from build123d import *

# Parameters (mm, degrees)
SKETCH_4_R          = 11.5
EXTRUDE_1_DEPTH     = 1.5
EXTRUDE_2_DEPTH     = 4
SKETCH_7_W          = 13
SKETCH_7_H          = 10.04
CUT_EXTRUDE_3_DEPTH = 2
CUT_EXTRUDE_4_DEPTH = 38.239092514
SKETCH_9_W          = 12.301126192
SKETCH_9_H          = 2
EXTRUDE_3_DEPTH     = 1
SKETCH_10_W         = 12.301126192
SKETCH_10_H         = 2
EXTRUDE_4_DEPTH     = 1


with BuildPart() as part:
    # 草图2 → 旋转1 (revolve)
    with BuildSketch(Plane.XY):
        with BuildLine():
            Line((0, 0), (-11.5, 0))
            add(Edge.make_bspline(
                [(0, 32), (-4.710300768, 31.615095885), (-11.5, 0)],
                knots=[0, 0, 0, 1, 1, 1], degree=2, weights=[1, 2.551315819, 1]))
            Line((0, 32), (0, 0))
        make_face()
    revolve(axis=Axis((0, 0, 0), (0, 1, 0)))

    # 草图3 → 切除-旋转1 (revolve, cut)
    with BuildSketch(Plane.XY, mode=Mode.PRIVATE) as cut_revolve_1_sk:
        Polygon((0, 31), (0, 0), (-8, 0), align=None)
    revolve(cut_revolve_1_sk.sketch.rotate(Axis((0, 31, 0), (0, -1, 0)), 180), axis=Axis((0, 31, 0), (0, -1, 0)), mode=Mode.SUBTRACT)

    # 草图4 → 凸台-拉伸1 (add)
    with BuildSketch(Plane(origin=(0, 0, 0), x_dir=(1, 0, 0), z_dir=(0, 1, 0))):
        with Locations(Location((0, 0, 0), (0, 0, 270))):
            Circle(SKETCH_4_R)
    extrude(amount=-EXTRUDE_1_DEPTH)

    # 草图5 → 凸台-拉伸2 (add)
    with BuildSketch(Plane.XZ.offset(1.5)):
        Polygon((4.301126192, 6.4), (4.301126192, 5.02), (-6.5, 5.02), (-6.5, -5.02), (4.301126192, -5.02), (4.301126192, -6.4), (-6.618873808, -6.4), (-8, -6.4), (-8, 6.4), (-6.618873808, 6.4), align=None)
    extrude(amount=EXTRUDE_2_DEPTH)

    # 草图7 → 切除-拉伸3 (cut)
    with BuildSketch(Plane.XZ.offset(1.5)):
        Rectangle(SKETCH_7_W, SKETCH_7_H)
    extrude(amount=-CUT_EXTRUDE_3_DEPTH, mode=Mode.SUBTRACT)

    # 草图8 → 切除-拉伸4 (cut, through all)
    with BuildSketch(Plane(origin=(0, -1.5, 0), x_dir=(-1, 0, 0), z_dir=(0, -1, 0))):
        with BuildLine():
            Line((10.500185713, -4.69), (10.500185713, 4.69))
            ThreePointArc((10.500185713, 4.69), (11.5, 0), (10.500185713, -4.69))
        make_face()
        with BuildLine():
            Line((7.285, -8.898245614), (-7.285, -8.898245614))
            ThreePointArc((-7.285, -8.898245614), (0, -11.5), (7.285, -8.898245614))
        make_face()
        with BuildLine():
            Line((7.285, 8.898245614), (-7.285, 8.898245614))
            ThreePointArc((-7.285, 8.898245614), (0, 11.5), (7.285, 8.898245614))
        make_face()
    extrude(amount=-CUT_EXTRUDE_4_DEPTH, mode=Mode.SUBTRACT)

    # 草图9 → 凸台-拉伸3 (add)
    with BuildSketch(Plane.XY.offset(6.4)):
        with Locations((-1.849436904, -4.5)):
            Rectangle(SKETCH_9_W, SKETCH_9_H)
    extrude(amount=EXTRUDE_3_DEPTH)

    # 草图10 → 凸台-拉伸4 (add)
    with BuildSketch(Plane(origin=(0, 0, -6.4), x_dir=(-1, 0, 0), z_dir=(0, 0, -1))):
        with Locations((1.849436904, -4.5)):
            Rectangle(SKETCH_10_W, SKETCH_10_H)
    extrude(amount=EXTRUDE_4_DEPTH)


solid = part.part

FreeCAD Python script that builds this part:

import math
import FreeCAD as App
import Part
import Sketcher
Q = App.Units.Quantity

doc = App.newDocument("Part")
body = doc.addObject("PartDesign::Body", "Body")

# Sketch on XY plane
sketch1 = body.newObject("Sketcher::SketchObject", "Sketch")
sketch1.AttachmentSupport = (doc.getObject("XY_Plane"), [""])
sketch1.MapMode = "FlatFace"
sketch1.addGeometry(Part.LineSegment(App.Vector(-11.5, 0, 0), App.Vector(0, 0, 0)), False)
sketch1.addGeometry(Part.LineSegment(App.Vector(0, 0, 0), App.Vector(0, 32, 0)), False)
sketch1.addGeometry(Part.BSplineCurve([App.Vector(0, 32, 0), App.Vector(-4.710301, 31.615096, 0), App.Vector(-11.5, 0, 0)], [3, 3], [0, 1], False, 2, [1, 2.551315819, 1], False), False)
sketch1.addConstraint(Sketcher.Constraint("Block", 2))
sketch1.addConstraint(Sketcher.Constraint("Coincident", 0, 2, 1, 1))
sketch1.addConstraint(Sketcher.Constraint("Coincident", 1, 2, 2, 1))
sketch1.addConstraint(Sketcher.Constraint("Coincident", 2, 2, 0, 1))
sketch1.addConstraint(Sketcher.Constraint("Horizontal", 0))
sketch1.addConstraint(Sketcher.Constraint("Vertical", 1))
revolution = body.newObject("PartDesign::Revolution", "Revolution")
revolution.Profile = sketch1
revolution.ReferenceAxis = (sketch1, ["V_Axis"])
revolution.Angle = 360

# Sketch on XY plane
sketch2 = body.newObject("Sketcher::SketchObject", "Sketch001")
sketch2.AttachmentSupport = (doc.getObject("XY_Plane"), [""])
sketch2.MapMode = "FlatFace"
sketch2.addGeometry(Part.LineSegment(App.Vector(0, 0, 0), App.Vector(0, 31, 0)), False)
sketch2.addGeometry(Part.LineSegment(App.Vector(0, 31, 0), App.Vector(-8, 0, 0)), False)
sketch2.addGeometry(Part.LineSegment(App.Vector(-8, 0, 0), App.Vector(0, 0, 0)), False)
sketch2.addConstraint(Sketcher.Constraint("Coincident", 0, 2, 1, 1))
sketch2.addConstraint(Sketcher.Constraint("Coincident", 1, 2, 2, 1))
sketch2.addConstraint(Sketcher.Constraint("Coincident", 2, 2, 0, 1))
sketch2.addConstraint(Sketcher.Constraint("Vertical", 0))
sketch2.addConstraint(Sketcher.Constraint("Horizontal", 2))
sketch2.addConstraint(Sketcher.Constraint("Coincident", 2, 2, -1, 1))
sketch2.addConstraint(Sketcher.Constraint("DistanceX", 2, 1, 2, 2, Q("8 mm")))
sketch2.addConstraint(Sketcher.Constraint("DistanceY", 0, 1, 0, 2, Q("31 mm")))
groove = body.newObject("PartDesign::Groove", "Groove")
groove.Profile = sketch2
groove.ReferenceAxis = (sketch2, ["V_Axis"])
groove.Angle = 360

# Sketch on XZ plane
sketch3 = body.newObject("Sketcher::SketchObject", "Sketch002")
sketch3.AttachmentSupport = (doc.getObject("XZ_Plane"), [""])
sketch3.MapMode = "FlatFace"
sketch3.addGeometry(Part.Circle(App.Vector(0, 0, 0), App.Vector(0, 0, 1), 12), False)
sketch3.addConstraint(Sketcher.Constraint("Coincident", 0, 3, -1, 1))
sketch3.addConstraint(Sketcher.Constraint("Diameter", 0, Q("23 mm")))
pad1 = body.newObject("PartDesign::Pad", "Pad")
pad1.Profile = sketch3
pad1.Length = 1.5

# Sketch on XZ plane
sketch4 = body.newObject("Sketcher::SketchObject", "Sketch003")
sketch4.AttachmentSupport = (doc.getObject("XZ_Plane"), [""])
sketch4.MapMode = "FlatFace"
sketch4.AttachmentOffset = App.Placement(App.Vector(0, 0, 1.5), App.Rotation())
sketch4.addGeometry(Part.LineSegment(App.Vector(4.3, 5, 0), App.Vector(4.3, 6.4, 0)), False)
sketch4.addGeometry(Part.LineSegment(App.Vector(4.3, 6.4, 0), App.Vector(-8, 6.4, 0)), False)
sketch4.addGeometry(Part.LineSegment(App.Vector(-8, 6.4, 0), App.Vector(-8, -6.4, 0)), False)
sketch4.addGeometry(Part.LineSegment(App.Vector(-8, -6.4, 0), App.Vector(4.3, -6.4, 0)), False)
sketch4.addGeometry(Part.LineSegment(App.Vector(4.3, -6.4, 0), App.Vector(4.3, -5, 0)), False)
sketch4.addGeometry(Part.LineSegment(App.Vector(4.3, -5, 0), App.Vector(-6.5, -5, 0)), False)
sketch4.addGeometry(Part.LineSegment(App.Vector(-6.5, -5, 0), App.Vector(-6.5, 5, 0)), False)
sketch4.addGeometry(Part.LineSegment(App.Vector(-6.5, 5, 0), App.Vector(4.3, 5, 0)), False)
sketch4.addConstraint(Sketcher.Constraint("Coincident", 0, 2, 1, 1))
sketch4.addConstraint(Sketcher.Constraint("Coincident", 1, 2, 2, 1))
sketch4.addConstraint(Sketcher.Constraint("Coincident", 2, 2, 3, 1))
sketch4.addConstraint(Sketcher.Constraint("Coincident", 3, 2, 4, 1))
sketch4.addConstraint(Sketcher.Constraint("Coincident", 4, 2, 5, 1))
sketch4.addConstraint(Sketcher.Constraint("Coincident", 5, 2, 6, 1))
sketch4.addConstraint(Sketcher.Constraint("Coincident", 6, 2, 7, 1))
sketch4.addConstraint(Sketcher.Constraint("Coincident", 7, 2, 0, 1))
sketch4.addConstraint(Sketcher.Constraint("Vertical", 0))
sketch4.addConstraint(Sketcher.Constraint("Horizontal", 1))
sketch4.addConstraint(Sketcher.Constraint("Vertical", 2))
sketch4.addConstraint(Sketcher.Constraint("Horizontal", 3))
sketch4.addConstraint(Sketcher.Constraint("Vertical", 4))
sketch4.addConstraint(Sketcher.Constraint("Horizontal", 5))
sketch4.addConstraint(Sketcher.Constraint("Vertical", 6))
sketch4.addConstraint(Sketcher.Constraint("Horizontal", 7))
sketch4.addConstraint(Sketcher.Constraint("Symmetric", 0, 2, 3, 2, -1))
sketch4.addConstraint(Sketcher.Constraint("Equal", 0, 4))
sketch4.addConstraint(Sketcher.Constraint("DistanceY", 2, 2, 2, 1, Q("12.8 mm")))
sketch4.addConstraint(Sketcher.Constraint("DistanceX", 1, 2, -1, 1, Q("8 mm")))
sketch4.addConstraint(Sketcher.Constraint("DistanceY", 0, 1, 0, 2, Q("1.38 mm")))
sketch4.addConstraint(Sketcher.Constraint("DistanceX", 5, 2, -1, 1, Q("6.5 mm")))
sketch4.addConstraint(Sketcher.Constraint("DistanceX", 1, 2, 1, 1, Q("12.301126 mm")))
pad2 = body.newObject("PartDesign::Pad", "Pad001")
pad2.Profile = sketch4
pad2.Length = 4

# Sketch on XZ plane
sketch5 = body.newObject("Sketcher::SketchObject", "Sketch004")
sketch5.AttachmentSupport = (doc.getObject("XZ_Plane"), [""])
sketch5.MapMode = "FlatFace"
sketch5.AttachmentOffset = App.Placement(App.Vector(0, 0, 1.5), App.Rotation())
sketch5.addGeometry(Part.LineSegment(App.Vector(-6, 5, 0), App.Vector(-6, -5, 0)), False)
sketch5.addGeometry(Part.LineSegment(App.Vector(-6, -5, 0), App.Vector(6, -5, 0)), False)
sketch5.addGeometry(Part.LineSegment(App.Vector(6, -5, 0), App.Vector(6, 5, 0)), False)
sketch5.addGeometry(Part.LineSegment(App.Vector(6, 5, 0), App.Vector(-6, 5, 0)), False)
sketch5.addConstraint(Sketcher.Constraint("Coincident", 0, 2, 1, 1))
sketch5.addConstraint(Sketcher.Constraint("Coincident", 1, 2, 2, 1))
sketch5.addConstraint(Sketcher.Constraint("Coincident", 2, 2, 3, 1))
sketch5.addConstraint(Sketcher.Constraint("Coincident", 3, 2, 0, 1))
sketch5.addConstraint(Sketcher.Constraint("Vertical", 0))
sketch5.addConstraint(Sketcher.Constraint("Horizontal", 1))
sketch5.addConstraint(Sketcher.Constraint("Vertical", 2))
sketch5.addConstraint(Sketcher.Constraint("Horizontal", 3))
sketch5.addConstraint(Sketcher.Constraint("Symmetric", 0, 2, 2, 2, -1, 1))
sketch5.addConstraint(Sketcher.Constraint("DistanceX", 1, 1, 1, 2, Q("13 mm")))
sketch5.addConstraint(Sketcher.Constraint("DistanceY", 0, 2, 0, 1, Q("10.04 mm")))
pocket1 = body.newObject("PartDesign::Pocket", "Pocket")
pocket1.Profile = sketch5
pocket1.Length = 2

# Sketch on XZ plane
sketch6 = body.newObject("Sketcher::SketchObject", "Sketch005")
sketch6.AttachmentSupport = (doc.getObject("XZ_Plane"), [""])
sketch6.MapMode = "FlatFace"
sketch6.AttachmentOffset = App.Placement(App.Vector(0, 0, 1.5), App.Rotation())
sketch6.addGeometry(Part.LineSegment(App.Vector(-11, -5, 0), App.Vector(-11, 5, 0)), False)
sketch6.addGeometry(Part.ArcOfCircle(Part.Circle(App.Vector(0, 0, 0), App.Vector(0, 0, 1), 12), math.radians(156), math.radians(204)), False)
sketch6.addGeometry(Part.LineSegment(App.Vector(-7, 9, 0), App.Vector(7, 9, 0)), False)
sketch6.addGeometry(Part.ArcOfCircle(Part.Circle(App.Vector(0, 0, 0), App.Vector(0, 0, 1), 12), math.radians(51), math.radians(129)), False)
sketch6.addGeometry(Part.LineSegment(App.Vector(7, -9, 0), App.Vector(-7, -9, 0)), False)
sketch6.addGeometry(Part.ArcOfCircle(Part.Circle(App.Vector(0, 0, 0), App.Vector(0, 0, 1), 12), math.radians(-129), math.radians(-51)), False)
sketch6.addConstraint(Sketcher.Constraint("Coincident", 0, 1, 1, 2))
sketch6.addConstraint(Sketcher.Constraint("Coincident", 1, 1, 0, 2))
sketch6.addConstraint(Sketcher.Constraint("Coincident", 2, 1, 3, 2))
sketch6.addConstraint(Sketcher.Constraint("Coincident", 3, 1, 2, 2))
sketch6.addConstraint(Sketcher.Constraint("Coincident", 4, 1, 5, 2))
sketch6.addConstraint(Sketcher.Constraint("Coincident", 5, 1, 4, 2))
sketch6.addConstraint(Sketcher.Constraint("Vertical", 0))
sketch6.addConstraint(Sketcher.Constraint("Horizontal", 2))
sketch6.addConstraint(Sketcher.Constraint("Horizontal", 4))
sketch6.addConstraint(Sketcher.Constraint("Coincident", 1, 3, -1, 1))
sketch6.addConstraint(Sketcher.Constraint("Coincident", 3, 3, -1, 1))
sketch6.addConstraint(Sketcher.Constraint("Coincident", 5, 3, -1, 1))
sketch6.addConstraint(Sketcher.Constraint("Equal", 1, 3))
sketch6.addConstraint(Sketcher.Constraint("Equal", 3, 5))
sketch6.addConstraint(Sketcher.Constraint("Vertical", 3, 1, 4, 1))
sketch6.addConstraint(Sketcher.Constraint("Radius", 1, Q("11.5 mm")))
sketch6.addConstraint(Sketcher.Constraint("DistanceX", 2, 1, 2, 2, Q("14.57 mm")))
sketch6.addConstraint(Sketcher.Constraint("DistanceY", 0, 1, 0, 2, Q("9.38 mm")))
pocket2 = body.newObject("PartDesign::Pocket", "Pocket001")
pocket2.Profile = sketch6
pocket2.Type = "ThroughAll"

# Sketch on XY plane
sketch7 = body.newObject("Sketcher::SketchObject", "Sketch006")
sketch7.AttachmentSupport = (doc.getObject("XY_Plane"), [""])
sketch7.MapMode = "FlatFace"
sketch7.AttachmentOffset = App.Placement(App.Vector(0, 0, 6.4), App.Rotation())
sketch7.addGeometry(Part.LineSegment(App.Vector(-8, -3.5, 0), App.Vector(-8, -5.5, 0)), False)
sketch7.addGeometry(Part.LineSegment(App.Vector(-8, -5.5, 0), App.Vector(4.3, -5.5, 0)), False)
sketch7.addGeometry(Part.LineSegment(App.Vector(4.3, -5.5, 0), App.Vector(4.3, -3.5, 0)), False)
sketch7.addGeometry(Part.LineSegment(App.Vector(4.3, -3.5, 0), App.Vector(-8, -3.5, 0)), False)
sketch7.addConstraint(Sketcher.Constraint("Coincident", 0, 2, 1, 1))
sketch7.addConstraint(Sketcher.Constraint("Coincident", 1, 2, 2, 1))
sketch7.addConstraint(Sketcher.Constraint("Coincident", 2, 2, 3, 1))
sketch7.addConstraint(Sketcher.Constraint("Coincident", 3, 2, 0, 1))
sketch7.addConstraint(Sketcher.Constraint("Vertical", 0))
sketch7.addConstraint(Sketcher.Constraint("Horizontal", 1))
sketch7.addConstraint(Sketcher.Constraint("Vertical", 2))
sketch7.addConstraint(Sketcher.Constraint("Horizontal", 3))
sketch7.addConstraint(Sketcher.Constraint("DistanceY", 0, 2, 0, 1, Q("2 mm")))
sketch7.addConstraint(Sketcher.Constraint("DistanceX", 0, 2, -1, 1, Q("8 mm")))
sketch7.addConstraint(Sketcher.Constraint("DistanceY", 0, 2, -1, 1, Q("5.5 mm")))
sketch7.addConstraint(Sketcher.Constraint("DistanceX", 1, 1, 1, 2, Q("12.301126 mm")))
pad3 = body.newObject("PartDesign::Pad", "Pad002")
pad3.Profile = sketch7
pad3.Length = 1

# Sketch on XY plane
sketch8 = body.newObject("Sketcher::SketchObject", "Sketch007")
sketch8.AttachmentSupport = (doc.getObject("XY_Plane"), [""])
sketch8.MapMode = "FlatFace"
sketch8.AttachmentOffset = App.Placement(App.Vector(0, 0, -6.4), App.Rotation())
sketch8.addGeometry(Part.LineSegment(App.Vector(4.3, -3.5, 0), App.Vector(4.3, -5.5, 0)), False)
sketch8.addGeometry(Part.LineSegment(App.Vector(4.3, -5.5, 0), App.Vector(-8, -5.5, 0)), False)
sketch8.addGeometry(Part.LineSegment(App.Vector(-8, -5.5, 0), App.Vector(-8, -3.5, 0)), False)
sketch8.addGeometry(Part.LineSegment(App.Vector(-8, -3.5, 0), App.Vector(4.3, -3.5, 0)), False)
sketch8.addConstraint(Sketcher.Constraint("Coincident", 0, 2, 1, 1))
sketch8.addConstraint(Sketcher.Constraint("Coincident", 1, 2, 2, 1))
sketch8.addConstraint(Sketcher.Constraint("Coincident", 2, 2, 3, 1))
sketch8.addConstraint(Sketcher.Constraint("Coincident", 3, 2, 0, 1))
sketch8.addConstraint(Sketcher.Constraint("Vertical", 0))
sketch8.addConstraint(Sketcher.Constraint("Horizontal", 1))
sketch8.addConstraint(Sketcher.Constraint("Vertical", 2))
sketch8.addConstraint(Sketcher.Constraint("Horizontal", 3))
sketch8.addConstraint(Sketcher.Constraint("DistanceY", 0, 2, 0, 1, Q("2 mm")))
sketch8.addConstraint(Sketcher.Constraint("DistanceX", 1, 2, -1, 1, Q("8 mm")))
sketch8.addConstraint(Sketcher.Constraint("DistanceY", 0, 2, -1, 1, Q("5.5 mm")))
sketch8.addConstraint(Sketcher.Constraint("DistanceX", 1, 2, 1, 1, Q("12.301126 mm")))
pad4 = body.newObject("PartDesign::Pad", "Pad003")
pad4.Profile = sketch8
pad4.Length = 1
pad4.Reversed = True

doc.recompute()
